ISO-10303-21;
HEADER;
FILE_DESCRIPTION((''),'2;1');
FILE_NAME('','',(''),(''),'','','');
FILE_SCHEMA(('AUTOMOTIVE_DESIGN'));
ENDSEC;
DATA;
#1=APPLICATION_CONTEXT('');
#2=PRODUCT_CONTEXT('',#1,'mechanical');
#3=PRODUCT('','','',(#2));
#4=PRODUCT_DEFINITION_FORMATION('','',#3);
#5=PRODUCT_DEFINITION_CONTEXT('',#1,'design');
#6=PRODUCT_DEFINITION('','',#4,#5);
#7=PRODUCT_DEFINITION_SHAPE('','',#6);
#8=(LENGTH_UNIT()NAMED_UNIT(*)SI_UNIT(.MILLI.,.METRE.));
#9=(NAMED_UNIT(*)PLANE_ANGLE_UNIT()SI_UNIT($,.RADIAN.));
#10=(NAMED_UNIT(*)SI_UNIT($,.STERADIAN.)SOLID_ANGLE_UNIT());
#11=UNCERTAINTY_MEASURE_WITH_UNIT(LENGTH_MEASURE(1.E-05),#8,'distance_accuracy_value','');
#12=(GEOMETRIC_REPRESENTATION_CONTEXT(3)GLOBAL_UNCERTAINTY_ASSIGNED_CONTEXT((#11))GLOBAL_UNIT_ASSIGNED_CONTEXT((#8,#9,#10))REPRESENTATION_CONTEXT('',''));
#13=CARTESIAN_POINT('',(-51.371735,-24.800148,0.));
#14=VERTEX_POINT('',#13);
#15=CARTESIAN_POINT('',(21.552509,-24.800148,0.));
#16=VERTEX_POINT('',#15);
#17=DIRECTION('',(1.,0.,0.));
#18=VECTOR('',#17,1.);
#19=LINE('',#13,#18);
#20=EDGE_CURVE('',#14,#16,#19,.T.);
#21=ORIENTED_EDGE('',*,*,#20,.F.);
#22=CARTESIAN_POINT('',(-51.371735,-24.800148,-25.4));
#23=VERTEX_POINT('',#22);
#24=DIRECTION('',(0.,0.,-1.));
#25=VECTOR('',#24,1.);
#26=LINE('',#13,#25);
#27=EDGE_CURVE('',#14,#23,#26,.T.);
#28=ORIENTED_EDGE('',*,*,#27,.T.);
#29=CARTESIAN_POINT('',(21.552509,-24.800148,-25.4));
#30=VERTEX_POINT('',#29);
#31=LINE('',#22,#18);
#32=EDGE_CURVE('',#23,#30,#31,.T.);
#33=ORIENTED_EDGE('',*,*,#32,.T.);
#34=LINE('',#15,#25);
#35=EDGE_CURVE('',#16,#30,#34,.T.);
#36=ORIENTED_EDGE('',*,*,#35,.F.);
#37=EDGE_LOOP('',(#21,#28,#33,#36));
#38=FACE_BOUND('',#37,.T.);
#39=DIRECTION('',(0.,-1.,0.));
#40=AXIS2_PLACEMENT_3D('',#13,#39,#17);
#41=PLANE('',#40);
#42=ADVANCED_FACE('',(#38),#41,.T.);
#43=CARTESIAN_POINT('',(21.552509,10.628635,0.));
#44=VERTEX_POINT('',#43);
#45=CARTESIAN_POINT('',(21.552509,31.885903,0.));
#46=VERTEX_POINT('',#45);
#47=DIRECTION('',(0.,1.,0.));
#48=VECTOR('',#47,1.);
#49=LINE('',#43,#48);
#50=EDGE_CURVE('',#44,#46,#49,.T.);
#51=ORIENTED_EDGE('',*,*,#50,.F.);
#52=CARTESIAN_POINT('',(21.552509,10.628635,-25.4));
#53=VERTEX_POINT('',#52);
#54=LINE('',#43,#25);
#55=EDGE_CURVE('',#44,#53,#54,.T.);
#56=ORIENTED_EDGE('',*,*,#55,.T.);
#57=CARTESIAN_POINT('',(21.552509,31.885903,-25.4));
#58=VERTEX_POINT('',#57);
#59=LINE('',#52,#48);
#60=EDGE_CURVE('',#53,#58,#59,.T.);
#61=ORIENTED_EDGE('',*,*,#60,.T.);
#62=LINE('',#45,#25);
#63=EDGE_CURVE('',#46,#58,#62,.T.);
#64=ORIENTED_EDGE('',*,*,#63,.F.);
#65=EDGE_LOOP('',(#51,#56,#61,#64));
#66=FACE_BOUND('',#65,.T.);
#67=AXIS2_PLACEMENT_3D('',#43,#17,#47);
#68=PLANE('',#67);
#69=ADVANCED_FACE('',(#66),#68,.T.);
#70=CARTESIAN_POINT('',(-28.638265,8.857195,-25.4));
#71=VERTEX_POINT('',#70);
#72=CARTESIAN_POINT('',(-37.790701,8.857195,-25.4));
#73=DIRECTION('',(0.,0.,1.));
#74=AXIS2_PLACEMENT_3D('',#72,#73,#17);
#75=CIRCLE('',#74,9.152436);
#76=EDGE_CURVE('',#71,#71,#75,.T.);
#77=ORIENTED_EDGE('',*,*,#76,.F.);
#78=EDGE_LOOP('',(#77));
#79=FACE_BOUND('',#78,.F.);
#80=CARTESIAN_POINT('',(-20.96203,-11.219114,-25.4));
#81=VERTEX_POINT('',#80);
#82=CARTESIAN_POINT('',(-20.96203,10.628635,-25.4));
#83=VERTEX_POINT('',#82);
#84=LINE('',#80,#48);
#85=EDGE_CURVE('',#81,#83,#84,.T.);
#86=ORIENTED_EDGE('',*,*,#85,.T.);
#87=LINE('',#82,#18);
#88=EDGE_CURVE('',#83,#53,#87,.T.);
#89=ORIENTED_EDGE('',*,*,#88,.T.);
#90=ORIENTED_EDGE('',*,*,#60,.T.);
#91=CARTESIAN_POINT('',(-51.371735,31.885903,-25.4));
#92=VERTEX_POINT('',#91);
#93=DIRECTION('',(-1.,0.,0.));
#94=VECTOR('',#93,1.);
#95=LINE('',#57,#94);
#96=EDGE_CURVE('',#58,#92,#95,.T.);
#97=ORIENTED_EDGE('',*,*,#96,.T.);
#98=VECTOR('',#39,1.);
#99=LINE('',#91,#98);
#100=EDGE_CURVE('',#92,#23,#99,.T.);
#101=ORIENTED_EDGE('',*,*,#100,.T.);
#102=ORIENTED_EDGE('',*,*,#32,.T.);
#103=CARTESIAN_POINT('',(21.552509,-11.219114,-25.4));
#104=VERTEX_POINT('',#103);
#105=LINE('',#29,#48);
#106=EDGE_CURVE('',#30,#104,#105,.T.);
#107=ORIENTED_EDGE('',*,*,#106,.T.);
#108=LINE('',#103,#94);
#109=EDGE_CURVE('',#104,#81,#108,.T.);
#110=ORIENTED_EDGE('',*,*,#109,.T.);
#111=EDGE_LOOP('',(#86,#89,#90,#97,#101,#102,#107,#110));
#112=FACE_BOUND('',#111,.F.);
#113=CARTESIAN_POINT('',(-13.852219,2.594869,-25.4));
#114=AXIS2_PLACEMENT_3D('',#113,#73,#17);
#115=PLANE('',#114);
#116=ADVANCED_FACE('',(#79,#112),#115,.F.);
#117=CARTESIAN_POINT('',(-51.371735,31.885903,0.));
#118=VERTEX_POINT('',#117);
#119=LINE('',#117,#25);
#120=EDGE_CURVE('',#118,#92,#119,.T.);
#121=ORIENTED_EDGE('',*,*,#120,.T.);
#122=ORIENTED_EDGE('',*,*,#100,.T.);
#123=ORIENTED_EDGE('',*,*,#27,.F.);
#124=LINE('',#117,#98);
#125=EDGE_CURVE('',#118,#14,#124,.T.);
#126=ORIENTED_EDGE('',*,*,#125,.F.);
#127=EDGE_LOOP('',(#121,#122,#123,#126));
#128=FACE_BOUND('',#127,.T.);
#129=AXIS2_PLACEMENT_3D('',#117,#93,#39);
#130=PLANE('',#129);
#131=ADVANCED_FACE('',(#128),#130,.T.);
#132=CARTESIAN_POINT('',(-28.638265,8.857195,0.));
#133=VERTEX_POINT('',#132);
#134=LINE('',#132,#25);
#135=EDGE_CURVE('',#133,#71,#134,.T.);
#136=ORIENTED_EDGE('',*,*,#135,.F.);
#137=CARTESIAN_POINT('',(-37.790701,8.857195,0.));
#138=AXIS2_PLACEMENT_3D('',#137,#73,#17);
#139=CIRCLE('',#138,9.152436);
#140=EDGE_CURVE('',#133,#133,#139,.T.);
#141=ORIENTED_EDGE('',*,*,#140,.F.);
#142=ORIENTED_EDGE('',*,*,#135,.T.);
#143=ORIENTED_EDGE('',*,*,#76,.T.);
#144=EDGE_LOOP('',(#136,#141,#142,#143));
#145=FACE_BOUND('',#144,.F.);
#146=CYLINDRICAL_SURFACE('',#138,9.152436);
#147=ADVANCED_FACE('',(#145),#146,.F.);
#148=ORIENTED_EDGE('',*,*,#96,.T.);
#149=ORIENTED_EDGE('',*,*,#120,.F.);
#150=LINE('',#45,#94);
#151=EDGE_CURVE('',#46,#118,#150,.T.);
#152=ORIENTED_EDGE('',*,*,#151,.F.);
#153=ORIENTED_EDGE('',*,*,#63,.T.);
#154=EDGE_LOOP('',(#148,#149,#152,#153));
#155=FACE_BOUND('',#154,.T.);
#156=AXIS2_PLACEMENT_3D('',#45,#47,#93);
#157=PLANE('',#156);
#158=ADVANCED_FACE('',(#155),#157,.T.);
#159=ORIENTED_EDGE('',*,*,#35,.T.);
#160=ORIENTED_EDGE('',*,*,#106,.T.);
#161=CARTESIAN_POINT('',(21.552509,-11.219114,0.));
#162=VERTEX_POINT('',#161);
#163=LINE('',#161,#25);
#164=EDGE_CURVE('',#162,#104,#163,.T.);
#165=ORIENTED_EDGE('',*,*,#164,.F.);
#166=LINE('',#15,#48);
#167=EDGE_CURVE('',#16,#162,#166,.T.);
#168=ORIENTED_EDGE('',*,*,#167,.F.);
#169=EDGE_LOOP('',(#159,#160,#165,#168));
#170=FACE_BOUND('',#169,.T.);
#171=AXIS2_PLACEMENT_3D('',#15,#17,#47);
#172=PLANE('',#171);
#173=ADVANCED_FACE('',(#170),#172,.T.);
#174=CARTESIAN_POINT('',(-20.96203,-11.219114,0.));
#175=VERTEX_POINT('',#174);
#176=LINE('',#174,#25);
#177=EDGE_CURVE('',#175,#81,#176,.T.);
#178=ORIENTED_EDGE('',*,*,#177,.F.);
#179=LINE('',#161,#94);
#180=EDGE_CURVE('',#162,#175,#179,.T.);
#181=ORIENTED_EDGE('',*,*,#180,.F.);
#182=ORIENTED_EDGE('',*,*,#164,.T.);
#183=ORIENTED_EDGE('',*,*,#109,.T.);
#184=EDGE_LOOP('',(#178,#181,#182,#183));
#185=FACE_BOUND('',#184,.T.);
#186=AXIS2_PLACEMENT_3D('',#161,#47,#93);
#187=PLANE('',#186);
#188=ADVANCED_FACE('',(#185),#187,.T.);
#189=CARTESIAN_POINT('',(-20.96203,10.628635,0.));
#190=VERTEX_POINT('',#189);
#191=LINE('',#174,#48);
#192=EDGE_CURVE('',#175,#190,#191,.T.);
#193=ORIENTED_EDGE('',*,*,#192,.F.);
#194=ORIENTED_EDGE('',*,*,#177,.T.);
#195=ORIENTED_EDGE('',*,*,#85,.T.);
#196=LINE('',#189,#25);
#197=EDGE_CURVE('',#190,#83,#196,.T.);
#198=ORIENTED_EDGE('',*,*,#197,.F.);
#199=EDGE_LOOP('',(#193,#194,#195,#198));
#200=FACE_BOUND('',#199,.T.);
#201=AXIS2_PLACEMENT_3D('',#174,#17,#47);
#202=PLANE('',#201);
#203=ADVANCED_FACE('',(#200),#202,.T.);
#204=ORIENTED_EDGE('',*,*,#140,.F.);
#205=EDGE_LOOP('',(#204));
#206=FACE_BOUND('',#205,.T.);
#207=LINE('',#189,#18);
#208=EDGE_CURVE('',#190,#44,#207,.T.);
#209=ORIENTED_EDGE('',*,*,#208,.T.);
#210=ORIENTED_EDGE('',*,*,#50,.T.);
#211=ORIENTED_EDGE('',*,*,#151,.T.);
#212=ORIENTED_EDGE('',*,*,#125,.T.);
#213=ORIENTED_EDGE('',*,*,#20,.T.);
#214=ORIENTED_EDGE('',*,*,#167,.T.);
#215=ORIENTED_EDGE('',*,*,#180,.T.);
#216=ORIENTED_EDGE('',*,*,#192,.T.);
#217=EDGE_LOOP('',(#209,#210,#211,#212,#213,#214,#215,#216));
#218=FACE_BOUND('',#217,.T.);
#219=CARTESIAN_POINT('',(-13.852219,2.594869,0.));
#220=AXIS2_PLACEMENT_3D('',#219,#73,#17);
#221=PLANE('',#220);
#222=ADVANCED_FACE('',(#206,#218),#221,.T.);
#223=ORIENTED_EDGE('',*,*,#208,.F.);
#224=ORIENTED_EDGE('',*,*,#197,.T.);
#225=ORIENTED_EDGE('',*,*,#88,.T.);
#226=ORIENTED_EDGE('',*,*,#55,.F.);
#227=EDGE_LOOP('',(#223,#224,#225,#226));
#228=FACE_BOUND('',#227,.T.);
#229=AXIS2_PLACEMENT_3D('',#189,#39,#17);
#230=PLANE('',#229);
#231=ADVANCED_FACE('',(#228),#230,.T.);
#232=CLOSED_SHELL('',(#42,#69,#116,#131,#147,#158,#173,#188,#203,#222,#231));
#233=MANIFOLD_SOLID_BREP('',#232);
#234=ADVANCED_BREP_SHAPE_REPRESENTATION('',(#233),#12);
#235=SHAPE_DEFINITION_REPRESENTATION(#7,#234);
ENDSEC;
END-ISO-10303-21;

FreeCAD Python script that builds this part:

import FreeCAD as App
import Part
import Sketcher
from FreeCAD import Vector
Q = App.Units.Quantity


def add_polygon(sketch, points):
    """Adds a closed chain of lines whose ends are joined by coincident constraints."""
    first, n = sketch.GeometryCount, len(points)
    for a, b in zip(points, points[1:] + points[:1]):
        sketch.addGeometry(Part.LineSegment(App.Vector(*a, 0), App.Vector(*b, 0)), False)
    for i in range(n):
        sketch.addConstraint(Sketcher.Constraint("Coincident", first + i, 2, first + (i + 1) % n, 1))

doc = App.newDocument("Part")
params = doc.addObject("Spreadsheet::Sheet", "Params")
for row, (alias, value) in enumerate([
    ("pad1_length", "1 in"),
], start=1):
    params.set(f"A{row}", alias)
    params.set(f"B{row}", "=" + value)
    params.setAlias(f"B{row}", alias)

body = doc.addObject("PartDesign::Body", "Body")

# Sketch on XY plane
sketch1 = doc.addObject("Sketcher::SketchObject", "Sketch")
body.addObject(sketch1)
sketch1.AttachmentSupport = (doc.XY_Plane, [""])
sketch1.MapMode = "FlatFace"
add_polygon(sketch1, [(22, 32), (-51, 32), (-51, -25), (22, -25), (22, -11), (-21, -11), (-21, 11), (22, 11)])  # lines 0-7
sketch1.addGeometry(Part.Circle(Vector(-38, 9, 0), Vector(0, 0, 1), 9), False)  # 8
sketch1.addConstraint([
    Sketcher.Constraint("Horizontal", 0),
    Sketcher.Constraint("Vertical", 1),
    Sketcher.Constraint("Horizontal", 2),
    Sketcher.Constraint("Vertical", 3),
    Sketcher.Constraint("Horizontal", 4),
    Sketcher.Constraint("Vertical", 5),
    Sketcher.Constraint("Horizontal", 6),
    Sketcher.Constraint("Vertical", 7),
    Sketcher.Constraint("Vertical", 3, 2, 6, 2),
    Sketcher.Constraint("Diameter", 8, Q("18.304872 mm")),
    Sketcher.Constraint("DistanceX", 4, 2, 4, 1, Q("42.514539 mm")),
    Sketcher.Constraint("DistanceY", 1, 2, 1, 1, Q("56.686051 mm")),
    Sketcher.Constraint("DistanceY", 5, 1, 5, 2, Q("21.847749 mm")),
    Sketcher.Constraint("DistanceY", 7, 1, 7, 2, Q("21.257268 mm")),
    Sketcher.Constraint("DistanceX", 8, 3, -1, 1, Q("37.790701 mm")),
    Sketcher.Constraint("DistanceX", 0, 2, 0, 1, Q("72.924244 mm")),
    Sketcher.Constraint("DistanceY", 1, 2, -1, 1, Q("24.800148 mm")),
    Sketcher.Constraint("DistanceX", -1, 1, 2, 2, Q("21.552509 mm")),
    Sketcher.Constraint("DistanceY", 3, 2, 8, 3, Q("20.076309 mm")),
])
pad1 = doc.addObject("PartDesign::Pad", "Pad")
body.addObject(pad1)
pad1.Profile = sketch1
pad1.setExpression("Length", "Params.pad1_length")
pad1.Reversed = True

doc.recompute()
